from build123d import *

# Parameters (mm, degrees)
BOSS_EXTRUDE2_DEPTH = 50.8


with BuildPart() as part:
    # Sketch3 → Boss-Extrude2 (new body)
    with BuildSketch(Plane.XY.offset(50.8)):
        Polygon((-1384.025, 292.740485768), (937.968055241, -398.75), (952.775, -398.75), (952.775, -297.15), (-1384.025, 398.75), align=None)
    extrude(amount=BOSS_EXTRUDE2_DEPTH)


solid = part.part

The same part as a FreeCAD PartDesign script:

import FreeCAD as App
import Part
import Sketcher
from FreeCAD import Vector
Q = App.Units.Quantity

doc = App.newDocument("Part")
params = doc.addObject("Spreadsheet::Sheet", "Params")
for row, (alias, value) in enumerate([
    ("sketch1_height", "4 in"),
    ("pad1_length", "2 in"),
], start=1):
    params.set(f"A{row}", alias)
    params.set(f"B{row}", "=" + value)
    params.setAlias(f"B{row}", alias)

body = doc.addObject("PartDesign::Body", "Body")

# Sketch on XY plane
sketch1 = body.newObject("Sketcher::SketchObject", "Sketch")
sketch1.AttachmentSupport = (doc.getObject("XY_Plane"), [""])
sketch1.MapMode = "FlatFace"
sketch1.AttachmentOffset = App.Placement(Vector(0, 0, 2 * 25.4), App.Rotation())
sketch1.addGeometry(Part.LineSegment(Vector(-1384, 293, 0), Vector(938, -399, 0)), False)
sketch1.addGeometry(Part.LineSegment(Vector(938, -399, 0), Vector(953, -399, 0)), False)
sketch1.addGeometry(Part.LineSegment(Vector(953, -399, 0), Vector(953, -297, 0)), False)
sketch1.addGeometry(Part.LineSegment(Vector(953, -297, 0), Vector(-1384, 399, 0)), False)
sketch1.addGeometry(Part.LineSegment(Vector(-1384, 399, 0), Vector(-1384, 293, 0)), False)
sketch1.addConstraint(Sketcher.Constraint("Coincident", 0, 2, 1, 1))
sketch1.addConstraint(Sketcher.Constraint("Coincident", 1, 2, 2, 1))
sketch1.addConstraint(Sketcher.Constraint("Coincident", 2, 2, 3, 1))
sketch1.addConstraint(Sketcher.Constraint("Coincident", 3, 2, 4, 1))
sketch1.addConstraint(Sketcher.Constraint("Coincident", 4, 2, 0, 1))
sketch1.addConstraint(Sketcher.Constraint("Horizontal", 1))
sketch1.addConstraint(Sketcher.Constraint("Vertical", 2))
sketch1.addConstraint(Sketcher.Constraint("Vertical", 4))
sketch1.addConstraint(Sketcher.Constraint("Parallel", 0, 3))
sketch1.addConstraint(Sketcher.Constraint("DistanceY", 2, 1, 2, 2, Q("4 in")))
sketch1.addConstraint(Sketcher.Constraint("DistanceX", 3, 2, 2, 2, Q("92 in")))
sketch1.addConstraint(Sketcher.Constraint("DistanceY", 0, 2, -1, 1, Q("398.75 mm")))
sketch1.addConstraint(Sketcher.Constraint("DistanceX", -1, 1, 1, 2, Q("952.775 mm")))
sketch1.addConstraint(Sketcher.Constraint("DistanceY", -1, 1, 3, 2, Q("398.75 mm")))
sketch1.addConstraint(Sketcher.Constraint("Distance", 0, Q("2422.76925 mm")))
sketch1.setExpression("Constraints[9]", "Params.sketch1_height")
pad1 = body.newObject("PartDesign::Pad", "Pad")
pad1.Profile = sketch1
pad1.setExpression("Length", "Params.pad1_length")

doc.recompute()
